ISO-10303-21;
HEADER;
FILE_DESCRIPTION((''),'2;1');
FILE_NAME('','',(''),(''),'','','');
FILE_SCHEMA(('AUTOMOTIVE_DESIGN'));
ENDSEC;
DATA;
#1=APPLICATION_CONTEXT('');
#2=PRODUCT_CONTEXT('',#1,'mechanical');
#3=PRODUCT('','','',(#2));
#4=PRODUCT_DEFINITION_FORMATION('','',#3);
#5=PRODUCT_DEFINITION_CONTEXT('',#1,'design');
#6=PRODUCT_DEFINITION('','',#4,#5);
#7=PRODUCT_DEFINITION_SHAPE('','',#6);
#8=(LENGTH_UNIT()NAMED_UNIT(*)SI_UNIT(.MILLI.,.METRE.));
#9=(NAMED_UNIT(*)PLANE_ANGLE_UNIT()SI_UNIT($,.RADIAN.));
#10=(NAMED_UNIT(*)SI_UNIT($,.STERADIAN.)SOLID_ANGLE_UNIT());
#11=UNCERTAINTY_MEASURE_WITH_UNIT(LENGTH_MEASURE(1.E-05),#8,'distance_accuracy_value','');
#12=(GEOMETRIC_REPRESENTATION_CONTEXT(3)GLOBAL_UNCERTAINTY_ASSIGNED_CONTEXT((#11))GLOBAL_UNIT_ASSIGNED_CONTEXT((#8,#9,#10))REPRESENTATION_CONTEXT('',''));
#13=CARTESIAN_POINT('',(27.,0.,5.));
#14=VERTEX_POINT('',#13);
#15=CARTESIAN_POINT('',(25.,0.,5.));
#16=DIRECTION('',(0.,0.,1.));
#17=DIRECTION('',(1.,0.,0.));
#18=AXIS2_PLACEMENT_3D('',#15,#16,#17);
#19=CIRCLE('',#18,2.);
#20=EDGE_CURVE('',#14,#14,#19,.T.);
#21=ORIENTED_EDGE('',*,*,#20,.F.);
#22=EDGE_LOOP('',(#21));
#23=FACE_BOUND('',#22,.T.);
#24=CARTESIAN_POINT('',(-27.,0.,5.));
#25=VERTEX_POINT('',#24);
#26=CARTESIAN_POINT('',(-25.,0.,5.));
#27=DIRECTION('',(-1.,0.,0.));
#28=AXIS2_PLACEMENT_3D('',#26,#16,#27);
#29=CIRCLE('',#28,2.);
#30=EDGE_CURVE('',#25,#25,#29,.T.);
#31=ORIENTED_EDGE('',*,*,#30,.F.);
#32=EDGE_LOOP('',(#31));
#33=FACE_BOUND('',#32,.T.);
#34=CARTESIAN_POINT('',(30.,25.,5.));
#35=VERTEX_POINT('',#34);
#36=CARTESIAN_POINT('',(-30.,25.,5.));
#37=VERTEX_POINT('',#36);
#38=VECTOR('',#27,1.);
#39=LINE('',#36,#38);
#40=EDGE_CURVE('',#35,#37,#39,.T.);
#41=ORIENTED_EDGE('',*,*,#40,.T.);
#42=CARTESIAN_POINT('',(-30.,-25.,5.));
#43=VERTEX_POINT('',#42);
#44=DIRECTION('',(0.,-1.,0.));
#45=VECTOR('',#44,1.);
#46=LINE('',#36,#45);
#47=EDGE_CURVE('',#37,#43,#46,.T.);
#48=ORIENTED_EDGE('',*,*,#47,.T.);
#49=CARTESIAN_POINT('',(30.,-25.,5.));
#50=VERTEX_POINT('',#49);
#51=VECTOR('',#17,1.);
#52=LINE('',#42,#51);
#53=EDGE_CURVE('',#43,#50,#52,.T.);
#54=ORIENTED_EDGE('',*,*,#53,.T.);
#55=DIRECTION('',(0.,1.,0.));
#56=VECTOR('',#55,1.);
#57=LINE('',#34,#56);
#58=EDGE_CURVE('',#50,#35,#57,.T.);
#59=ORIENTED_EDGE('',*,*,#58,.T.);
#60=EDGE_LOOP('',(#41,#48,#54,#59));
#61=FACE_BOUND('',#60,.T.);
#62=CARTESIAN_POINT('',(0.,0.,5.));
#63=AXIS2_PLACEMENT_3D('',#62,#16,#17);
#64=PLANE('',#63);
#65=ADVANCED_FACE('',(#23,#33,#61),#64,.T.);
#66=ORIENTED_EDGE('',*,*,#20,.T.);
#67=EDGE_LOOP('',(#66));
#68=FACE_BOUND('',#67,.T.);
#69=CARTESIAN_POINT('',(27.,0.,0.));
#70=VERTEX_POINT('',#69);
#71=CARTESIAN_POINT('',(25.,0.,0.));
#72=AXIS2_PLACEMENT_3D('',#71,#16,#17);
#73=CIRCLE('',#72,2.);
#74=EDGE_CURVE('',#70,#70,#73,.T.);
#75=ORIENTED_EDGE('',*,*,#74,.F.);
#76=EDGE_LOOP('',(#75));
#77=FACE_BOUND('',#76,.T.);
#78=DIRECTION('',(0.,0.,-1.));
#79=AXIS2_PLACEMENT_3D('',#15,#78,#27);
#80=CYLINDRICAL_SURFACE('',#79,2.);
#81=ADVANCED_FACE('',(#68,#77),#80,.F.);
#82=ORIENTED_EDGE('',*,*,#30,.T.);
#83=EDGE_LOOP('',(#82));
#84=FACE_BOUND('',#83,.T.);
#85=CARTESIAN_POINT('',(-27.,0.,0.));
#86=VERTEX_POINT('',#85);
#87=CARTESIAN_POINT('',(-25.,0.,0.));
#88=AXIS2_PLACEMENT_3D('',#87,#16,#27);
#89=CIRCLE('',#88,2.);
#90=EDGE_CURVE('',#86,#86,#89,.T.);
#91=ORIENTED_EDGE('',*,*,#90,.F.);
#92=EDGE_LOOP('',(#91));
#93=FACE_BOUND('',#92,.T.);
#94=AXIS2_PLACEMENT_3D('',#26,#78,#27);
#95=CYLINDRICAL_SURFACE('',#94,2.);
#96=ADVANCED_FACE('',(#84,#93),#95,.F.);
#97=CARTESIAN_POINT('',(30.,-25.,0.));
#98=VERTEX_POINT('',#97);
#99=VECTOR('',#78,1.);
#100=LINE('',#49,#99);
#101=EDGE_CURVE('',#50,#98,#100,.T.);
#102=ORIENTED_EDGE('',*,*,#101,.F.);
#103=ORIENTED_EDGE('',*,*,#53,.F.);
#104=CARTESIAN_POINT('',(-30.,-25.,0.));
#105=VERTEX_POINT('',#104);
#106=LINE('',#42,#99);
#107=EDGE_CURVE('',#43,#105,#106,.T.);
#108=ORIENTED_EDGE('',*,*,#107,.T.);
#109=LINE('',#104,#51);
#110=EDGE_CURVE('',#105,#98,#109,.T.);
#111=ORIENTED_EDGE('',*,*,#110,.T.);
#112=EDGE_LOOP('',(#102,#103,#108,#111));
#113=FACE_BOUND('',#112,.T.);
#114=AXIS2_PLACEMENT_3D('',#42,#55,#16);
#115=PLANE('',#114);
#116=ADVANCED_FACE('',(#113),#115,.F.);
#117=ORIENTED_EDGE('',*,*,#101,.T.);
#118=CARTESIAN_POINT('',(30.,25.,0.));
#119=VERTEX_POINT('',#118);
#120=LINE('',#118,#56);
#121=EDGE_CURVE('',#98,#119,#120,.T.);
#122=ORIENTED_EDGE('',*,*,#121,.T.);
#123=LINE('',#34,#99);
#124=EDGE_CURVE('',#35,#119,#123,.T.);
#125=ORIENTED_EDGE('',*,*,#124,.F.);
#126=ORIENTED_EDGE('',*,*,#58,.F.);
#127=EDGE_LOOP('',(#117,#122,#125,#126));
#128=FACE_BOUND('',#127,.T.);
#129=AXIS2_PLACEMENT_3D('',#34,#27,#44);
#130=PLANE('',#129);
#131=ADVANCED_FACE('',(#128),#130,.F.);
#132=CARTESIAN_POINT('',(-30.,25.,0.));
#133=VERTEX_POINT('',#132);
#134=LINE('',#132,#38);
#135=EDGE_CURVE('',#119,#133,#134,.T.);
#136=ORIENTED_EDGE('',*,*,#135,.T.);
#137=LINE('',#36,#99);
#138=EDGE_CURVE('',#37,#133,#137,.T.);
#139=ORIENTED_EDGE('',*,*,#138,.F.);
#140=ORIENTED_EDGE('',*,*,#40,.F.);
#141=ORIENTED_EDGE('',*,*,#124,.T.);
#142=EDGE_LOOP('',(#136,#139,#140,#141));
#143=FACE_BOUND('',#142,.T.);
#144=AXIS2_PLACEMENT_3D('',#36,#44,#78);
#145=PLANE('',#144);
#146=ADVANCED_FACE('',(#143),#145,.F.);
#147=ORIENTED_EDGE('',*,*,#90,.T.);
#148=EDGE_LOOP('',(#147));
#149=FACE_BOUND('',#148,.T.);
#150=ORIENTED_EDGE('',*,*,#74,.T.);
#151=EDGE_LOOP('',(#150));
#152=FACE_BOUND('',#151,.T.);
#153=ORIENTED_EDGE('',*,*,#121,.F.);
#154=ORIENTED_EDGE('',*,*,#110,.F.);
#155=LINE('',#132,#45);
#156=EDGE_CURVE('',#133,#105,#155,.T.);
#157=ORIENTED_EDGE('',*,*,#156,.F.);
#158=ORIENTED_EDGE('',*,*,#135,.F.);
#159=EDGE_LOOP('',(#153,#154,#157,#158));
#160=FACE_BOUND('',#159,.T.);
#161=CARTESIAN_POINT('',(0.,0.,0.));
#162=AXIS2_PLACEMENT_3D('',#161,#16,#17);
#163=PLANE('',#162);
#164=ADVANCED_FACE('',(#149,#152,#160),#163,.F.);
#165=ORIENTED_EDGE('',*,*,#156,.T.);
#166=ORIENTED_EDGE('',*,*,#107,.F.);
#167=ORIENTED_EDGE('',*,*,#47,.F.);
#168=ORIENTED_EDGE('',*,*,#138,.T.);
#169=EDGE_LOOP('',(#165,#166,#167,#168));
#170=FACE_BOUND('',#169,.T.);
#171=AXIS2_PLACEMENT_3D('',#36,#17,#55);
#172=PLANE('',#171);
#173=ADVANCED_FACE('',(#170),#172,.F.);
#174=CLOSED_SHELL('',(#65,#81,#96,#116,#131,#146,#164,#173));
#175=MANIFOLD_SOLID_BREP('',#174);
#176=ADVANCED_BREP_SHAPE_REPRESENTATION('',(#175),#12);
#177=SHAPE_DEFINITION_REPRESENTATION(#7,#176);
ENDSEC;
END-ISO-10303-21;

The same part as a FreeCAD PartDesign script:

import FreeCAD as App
import Part
import Sketcher


def add_polygon(sketch, points):
    """Adds a closed chain of lines whose ends are joined by coincident constraints."""
    first, n = sketch.GeometryCount, len(points)
    for a, b in zip(points, points[1:] + points[:1]):
        sketch.addGeometry(Part.LineSegment(App.Vector(*a, 0), App.Vector(*b, 0)), False)
    for i in range(n):
        sketch.addConstraint(Sketcher.Constraint("Coincident", first + i, 2, first + (i + 1) % n, 1))

doc = App.newDocument("Part")
body = doc.addObject("PartDesign::Body", "Body")

# Sketch on XY plane
sketch1 = body.newObject("Sketcher::SketchObject", "Sketch")
sketch1.AttachmentSupport = (doc.getObject("XY_Plane"), [""])
sketch1.MapMode = "FlatFace"
add_polygon(sketch1, [(-30, 25), (-30, -25), (30, -25), (30, 25)])  # lines 0-3
sketch1.addGeometry(Part.Circle(App.Vector(-25, 0, 0), App.Vector(0, 0, 1), 2), False)  # 4
sketch1.addGeometry(Part.Circle(App.Vector(25, 0, 0), App.Vector(0, 0, 1), 2), False)  # 5
sketch1.addConstraint(Sketcher.Constraint("Vertical", 0))
sketch1.addConstraint(Sketcher.Constraint("Horizontal", 1))
sketch1.addConstraint(Sketcher.Constraint("Vertical", 2))
sketch1.addConstraint(Sketcher.Constraint("Horizontal", 3))
sketch1.addConstraint(Sketcher.Constraint("Equal", 4, 5))
sketch1.addConstraint(Sketcher.Constraint("Symmetric", 4, 3, 5, 3, -1, 1))
sketch1.addConstraint(Sketcher.Constraint("Symmetric", 0, 2, 2, 2, -1, 1))
sketch1.addConstraint(Sketcher.Constraint("PointOnObject", 4, 3, -1))
sketch1.addConstraint(Sketcher.Constraint("Diameter", 4, 4.0))
sketch1.addConstraint(Sketcher.Constraint("DistanceX", 1, 1, 1, 2, 60.0))
sketch1.addConstraint(Sketcher.Constraint("DistanceY", 0, 2, 0, 1, 50.0))
sketch1.addConstraint(Sketcher.Constraint("DistanceX", 4, 3, -1, 1, 25.0))
pad1 = body.newObject("PartDesign::Pad", "Pad")
pad1.Profile = sketch1
pad1.Length = 5

doc.recompute()
